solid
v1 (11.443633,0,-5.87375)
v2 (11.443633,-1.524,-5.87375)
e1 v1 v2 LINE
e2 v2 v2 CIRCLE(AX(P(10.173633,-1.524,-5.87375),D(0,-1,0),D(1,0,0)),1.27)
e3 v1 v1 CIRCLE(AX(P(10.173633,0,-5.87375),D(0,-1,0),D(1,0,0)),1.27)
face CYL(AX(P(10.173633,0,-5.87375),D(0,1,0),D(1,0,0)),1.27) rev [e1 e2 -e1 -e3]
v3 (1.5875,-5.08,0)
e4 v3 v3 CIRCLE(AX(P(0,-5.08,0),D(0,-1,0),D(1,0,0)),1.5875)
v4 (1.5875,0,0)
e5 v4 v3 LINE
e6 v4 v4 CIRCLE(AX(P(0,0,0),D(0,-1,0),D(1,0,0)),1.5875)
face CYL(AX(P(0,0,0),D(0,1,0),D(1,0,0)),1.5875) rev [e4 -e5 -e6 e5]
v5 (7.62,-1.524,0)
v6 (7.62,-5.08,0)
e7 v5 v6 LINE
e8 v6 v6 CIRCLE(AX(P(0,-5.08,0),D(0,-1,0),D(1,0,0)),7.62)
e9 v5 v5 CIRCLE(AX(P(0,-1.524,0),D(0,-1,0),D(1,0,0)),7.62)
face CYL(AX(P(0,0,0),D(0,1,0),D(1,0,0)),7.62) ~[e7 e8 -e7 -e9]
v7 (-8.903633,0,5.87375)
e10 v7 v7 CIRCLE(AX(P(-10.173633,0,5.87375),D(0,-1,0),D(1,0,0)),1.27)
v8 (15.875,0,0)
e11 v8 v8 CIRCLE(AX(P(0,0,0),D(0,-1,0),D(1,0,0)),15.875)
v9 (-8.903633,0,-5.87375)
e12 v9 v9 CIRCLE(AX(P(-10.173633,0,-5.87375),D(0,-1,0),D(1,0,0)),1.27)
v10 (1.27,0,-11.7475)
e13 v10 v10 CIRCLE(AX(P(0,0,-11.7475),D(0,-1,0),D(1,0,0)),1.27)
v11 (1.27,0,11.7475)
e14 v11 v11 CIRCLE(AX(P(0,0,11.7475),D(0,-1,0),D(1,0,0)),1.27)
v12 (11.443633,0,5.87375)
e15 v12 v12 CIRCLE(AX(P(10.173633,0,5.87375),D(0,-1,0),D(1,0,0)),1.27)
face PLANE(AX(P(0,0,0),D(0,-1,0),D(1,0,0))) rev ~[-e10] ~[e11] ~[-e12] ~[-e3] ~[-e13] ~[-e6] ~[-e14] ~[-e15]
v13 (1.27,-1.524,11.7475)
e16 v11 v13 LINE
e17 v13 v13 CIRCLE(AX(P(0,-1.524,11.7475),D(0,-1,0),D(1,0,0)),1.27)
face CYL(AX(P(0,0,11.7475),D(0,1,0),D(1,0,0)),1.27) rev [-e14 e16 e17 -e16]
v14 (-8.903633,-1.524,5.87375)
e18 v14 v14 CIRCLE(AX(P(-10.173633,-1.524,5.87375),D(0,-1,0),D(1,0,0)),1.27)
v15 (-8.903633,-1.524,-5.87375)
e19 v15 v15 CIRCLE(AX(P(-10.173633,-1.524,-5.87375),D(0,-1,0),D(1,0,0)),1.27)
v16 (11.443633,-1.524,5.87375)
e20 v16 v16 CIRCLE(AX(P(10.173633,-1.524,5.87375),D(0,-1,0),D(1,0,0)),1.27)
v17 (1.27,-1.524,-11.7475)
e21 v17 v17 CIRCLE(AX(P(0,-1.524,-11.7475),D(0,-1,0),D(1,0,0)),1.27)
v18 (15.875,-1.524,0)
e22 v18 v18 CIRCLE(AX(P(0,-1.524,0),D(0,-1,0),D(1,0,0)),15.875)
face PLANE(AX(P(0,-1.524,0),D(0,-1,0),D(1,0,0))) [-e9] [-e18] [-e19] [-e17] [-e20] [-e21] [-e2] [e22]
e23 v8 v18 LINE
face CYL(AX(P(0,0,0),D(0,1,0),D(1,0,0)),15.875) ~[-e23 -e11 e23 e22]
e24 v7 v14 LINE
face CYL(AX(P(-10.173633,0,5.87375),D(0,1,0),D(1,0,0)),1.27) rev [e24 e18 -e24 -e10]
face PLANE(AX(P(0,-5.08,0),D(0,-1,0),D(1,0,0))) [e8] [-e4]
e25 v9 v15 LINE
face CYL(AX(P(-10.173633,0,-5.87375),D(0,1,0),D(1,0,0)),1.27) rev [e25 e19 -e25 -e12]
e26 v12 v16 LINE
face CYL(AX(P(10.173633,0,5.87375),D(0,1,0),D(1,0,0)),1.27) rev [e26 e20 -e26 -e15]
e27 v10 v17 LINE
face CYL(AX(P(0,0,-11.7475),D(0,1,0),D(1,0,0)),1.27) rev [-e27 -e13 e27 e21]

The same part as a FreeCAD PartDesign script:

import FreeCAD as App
import Part
import Sketcher
from FreeCAD import Vector
Q = App.Units.Quantity

doc = App.newDocument("Part")
body = doc.addObject("PartDesign::Body", "Body")

sketch1 = body.newObject("Sketcher::SketchObject", "Sketch")
sketch1.AttachmentSupport = (doc.getObject("XZ_Plane"), [""])
sketch1.MapMode = "FlatFace"
sketch1.addGeometry([
    Part.Circle(Vector(0, 0, 0), Vector(0, 0, 1), 15.9),
    Part.Circle(Vector(-10.2, -5.9, 0), Vector(0, 0, 1), 1.3),
    Part.Circle(Vector(0, -11.7, 0), Vector(0, 0, 1), 1.3),
    Part.Circle(Vector(10.2, -5.9, 0), Vector(0, 0, 1), 1.3),
    Part.Circle(Vector(-10.2, 5.9, 0), Vector(0, 0, 1), 1.3),
    Part.Circle(Vector(0, 0, 0), Vector(0, 0, 1), 7.6),
    Part.Circle(Vector(10.2, 5.9, 0), Vector(0, 0, 1), 1.3),
    Part.Circle(Vector(0, 11.7, 0), Vector(0, 0, 1), 1.3),
], False)
sketch1.addConstraint([
    Sketcher.Constraint("Coincident", 0, 3, -1, 1),
    Sketcher.Constraint("Coincident", 5, 3, -1, 1),
    Sketcher.Constraint("Equal", 1, 2),
    Sketcher.Constraint("Equal", 2, 3),
    Sketcher.Constraint("Equal", 3, 4),
    Sketcher.Constraint("Equal", 4, 6),
    Sketcher.Constraint("Equal", 6, 7),
    Sketcher.Constraint("Symmetric", 3, 3, 4, 3, -1, 1),
    Sketcher.Constraint("Symmetric", 1, 3, 6, 3, -1, 1),
    Sketcher.Constraint("Symmetric", 2, 3, 7, 3, -1, 1),
    Sketcher.Constraint("Symmetric", 1, 3, 3, 3, -2),
    Sketcher.Constraint("PointOnObject", 2, 3, -2),
    Sketcher.Constraint("Diameter", 1, Q("0.1 in")),
    Sketcher.Constraint("Diameter", 5, Q("0.6 in")),
    Sketcher.Constraint("Diameter", 0, Q("1.25 in")),
    Sketcher.Constraint("DistanceY", 2, 3, -1, 1, Q("0.4625 in")),
    Sketcher.Constraint("DistanceY", 1, 3, 4, 3, Q("0.4625 in")),
    Sketcher.Constraint("DistanceX", 1, 3, -1, 1, 10.173633),
])
pad1 = body.newObject("PartDesign::Pad", "Pad")
pad1.Profile = sketch1
pad1.Length = Q("0.06 in")

sketch2 = body.newObject("Sketcher::SketchObject", "Sketch001")
sketch2.AttachmentSupport = (doc.getObject("XZ_Plane"), [""])
sketch2.MapMode = "FlatFace"
sketch2.addGeometry([
    Part.Circle(Vector(0, 0, 0), Vector(0, 0, 1), 7.6),
    Part.Circle(Vector(0, 0, 0), Vector(0, 0, 1), 1.6),
], False)
sketch2.addConstraint([
    Sketcher.Constraint("Coincident", 0, 3, -1, 1),
    Sketcher.Constraint("Coincident", 1, 3, -1, 1),
    Sketcher.Constraint("Diameter", 0, Q("0.6 in")),
    Sketcher.Constraint("Diameter", 1, Q("0.125 in")),
])
pad2 = body.newObject("PartDesign::Pad", "Pad001")
pad2.Profile = sketch2
pad2.Length = Q("0.2 in")

doc.recompute()
